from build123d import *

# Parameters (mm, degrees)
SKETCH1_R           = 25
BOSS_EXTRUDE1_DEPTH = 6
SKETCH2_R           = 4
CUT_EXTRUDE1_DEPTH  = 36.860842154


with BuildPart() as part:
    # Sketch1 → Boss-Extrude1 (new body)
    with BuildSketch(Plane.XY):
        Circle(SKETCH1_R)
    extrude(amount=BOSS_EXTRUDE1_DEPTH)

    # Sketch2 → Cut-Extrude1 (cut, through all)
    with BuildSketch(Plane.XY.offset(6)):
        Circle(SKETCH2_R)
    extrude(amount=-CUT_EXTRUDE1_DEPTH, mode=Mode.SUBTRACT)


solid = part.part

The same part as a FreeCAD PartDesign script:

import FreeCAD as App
import Part
import Sketcher

doc = App.newDocument("Part")
body = doc.addObject("PartDesign::Body", "Body")

sketch1 = body.newObject("Sketcher::SketchObject", "Sketch")
sketch1.AttachmentSupport = (doc.getObject("XY_Plane"), [""])
sketch1.MapMode = "FlatFace"
sketch1.addGeometry(Part.Circle(App.Vector(0, 0, 0), App.Vector(0, 0, 1), 25), False)
sketch1.addConstraint([
    Sketcher.Constraint("Coincident", 0, 3, -1, 1),
    Sketcher.Constraint("Diameter", 0, 50.0),
])
pad1 = body.newObject("PartDesign::Pad", "Pad")
pad1.Profile = sketch1
pad1.Length = 6

sketch2 = body.newObject("Sketcher::SketchObject", "Sketch001")
sketch2.AttachmentSupport = (doc.getObject("XY_Plane"), [""])
sketch2.MapMode = "FlatFace"
sketch2.AttachmentOffset = App.Placement(App.Vector(0, 0, 6), App.Rotation())
sketch2.addGeometry(Part.Circle(App.Vector(0, 0, 0), App.Vector(0, 0, 1), 4), False)
sketch2.addConstraint([
    Sketcher.Constraint("Coincident", 0, 3, -1, 1),
    Sketcher.Constraint("Diameter", 0, 8.0),
])
pocket1 = body.newObject("PartDesign::Pocket", "Pocket")
pocket1.Profile = sketch2
pocket1.Type = "ThroughAll"

doc.recompute()
